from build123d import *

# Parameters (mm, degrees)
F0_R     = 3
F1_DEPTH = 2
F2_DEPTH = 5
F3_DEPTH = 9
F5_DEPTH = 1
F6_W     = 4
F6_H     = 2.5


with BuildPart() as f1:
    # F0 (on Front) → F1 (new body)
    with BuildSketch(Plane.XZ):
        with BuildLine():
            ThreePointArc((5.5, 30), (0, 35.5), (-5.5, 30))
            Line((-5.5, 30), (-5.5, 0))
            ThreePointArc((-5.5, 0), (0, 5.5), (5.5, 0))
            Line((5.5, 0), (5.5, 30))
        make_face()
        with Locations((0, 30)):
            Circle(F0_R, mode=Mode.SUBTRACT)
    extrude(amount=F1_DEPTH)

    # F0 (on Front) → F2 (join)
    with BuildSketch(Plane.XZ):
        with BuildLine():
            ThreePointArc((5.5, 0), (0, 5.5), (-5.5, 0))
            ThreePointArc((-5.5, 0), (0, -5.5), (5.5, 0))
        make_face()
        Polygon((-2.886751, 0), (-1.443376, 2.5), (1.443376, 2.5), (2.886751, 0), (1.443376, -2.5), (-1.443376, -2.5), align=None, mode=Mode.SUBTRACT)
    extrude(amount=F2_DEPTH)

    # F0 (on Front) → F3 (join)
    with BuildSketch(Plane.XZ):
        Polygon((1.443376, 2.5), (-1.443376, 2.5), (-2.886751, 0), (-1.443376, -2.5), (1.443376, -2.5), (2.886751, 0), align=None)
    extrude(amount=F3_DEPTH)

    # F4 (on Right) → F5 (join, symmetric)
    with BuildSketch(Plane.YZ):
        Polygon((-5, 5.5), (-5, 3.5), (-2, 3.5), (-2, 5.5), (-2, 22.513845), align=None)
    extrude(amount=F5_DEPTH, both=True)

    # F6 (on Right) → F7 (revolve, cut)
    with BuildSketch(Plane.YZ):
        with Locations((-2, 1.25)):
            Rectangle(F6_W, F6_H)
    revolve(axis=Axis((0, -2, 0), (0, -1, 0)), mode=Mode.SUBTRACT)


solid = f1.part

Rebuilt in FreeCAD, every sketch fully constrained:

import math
import FreeCAD as App
import Part
import Sketcher
Q = App.Units.Quantity

doc = App.newDocument("Part")
body = doc.addObject("PartDesign::Body", "Body")

# Sketch on XZ plane
sketch1 = doc.addObject("Sketcher::SketchObject", "Sketch")
body.addObject(sketch1)
sketch1.AttachmentSupport = (doc.XZ_Plane, [""])
sketch1.MapMode = "FlatFace"
sketch1.addGeometry(Part.ArcOfCircle(Part.Circle(App.Vector(0, 30, 0), App.Vector(0, 0, 1), 5.5), math.radians(0), math.radians(180)), False)
sketch1.addGeometry(Part.LineSegment(App.Vector(-5.5, 30, 0), App.Vector(-5.5, 0, 0)), False)
sketch1.addGeometry(Part.ArcOfCircle(Part.Circle(App.Vector(0, 0, 0), App.Vector(0, 0, 1), 5.5), math.radians(0), math.radians(180)), False)
sketch1.addGeometry(Part.LineSegment(App.Vector(5.5, 0, 0), App.Vector(5.5, 30, 0)), False)
sketch1.addGeometry(Part.Circle(App.Vector(0, 30, 0), App.Vector(0, 0, 1), 3), False)
sketch1.addConstraint(Sketcher.Constraint("Tangent", 0, 2, 1, 1))
sketch1.addConstraint(Sketcher.Constraint("Tangent", 1, 2, 2, 2))
sketch1.addConstraint(Sketcher.Constraint("Tangent", 2, 1, 3, 1))
sketch1.addConstraint(Sketcher.Constraint("Tangent", 3, 2, 0, 1))
sketch1.addConstraint(Sketcher.Constraint("Vertical", 1))
sketch1.addConstraint(Sketcher.Constraint("Vertical", 3))
sketch1.addConstraint(Sketcher.Constraint("Coincident", 2, 3, -1, 1))
sketch1.addConstraint(Sketcher.Constraint("Coincident", 4, 3, 0, 3))
sketch1.addConstraint(Sketcher.Constraint("Diameter", 4, Q("6 mm")))
sketch1.addConstraint(Sketcher.Constraint("Radius", 0, Q("5.5 mm")))
sketch1.addConstraint(Sketcher.Constraint("DistanceY", 1, 2, 1, 1, Q("30 mm")))
pad1 = doc.addObject("PartDesign::Pad", "Pad")
body.addObject(pad1)
pad1.Profile = sketch1
pad1.Length = 2

# Sketch on XZ plane
sketch2 = doc.addObject("Sketcher::SketchObject", "Sketch001")
body.addObject(sketch2)
sketch2.AttachmentSupport = (doc.XZ_Plane, [""])
sketch2.MapMode = "FlatFace"
sketch2.addGeometry(Part.Circle(App.Vector(0, 0, 0), App.Vector(0, 0, 1), 5.5), False)
sketch2.addGeometry(Part.LineSegment(App.Vector(-1.443376, -2.5, 0), App.Vector(-2.886751, 0, 0)), False)
sketch2.addGeometry(Part.LineSegment(App.Vector(-2.886751, 0, 0), App.Vector(-1.443376, 2.5, 0)), False)
sketch2.addGeometry(Part.LineSegment(App.Vector(-1.443376, 2.5, 0), App.Vector(1.443376, 2.5, 0)), False)
sketch2.addGeometry(Part.LineSegment(App.Vector(1.443376, 2.5, 0), App.Vector(2.886751, 0, 0)), False)
sketch2.addGeometry(Part.LineSegment(App.Vector(2.886751, 0, 0), App.Vector(1.443376, -2.5, 0)), False)
sketch2.addGeometry(Part.LineSegment(App.Vector(1.443376, -2.5, 0), App.Vector(-1.443376, -2.5, 0)), False)
sketch2.addConstraint(Sketcher.Constraint("Coincident", 1, 2, 2, 1))
sketch2.addConstraint(Sketcher.Constraint("Coincident", 2, 2, 3, 1))
sketch2.addConstraint(Sketcher.Constraint("Coincident", 3, 2, 4, 1))
sketch2.addConstraint(Sketcher.Constraint("Coincident", 4, 2, 5, 1))
sketch2.addConstraint(Sketcher.Constraint("Coincident", 5, 2, 6, 1))
sketch2.addConstraint(Sketcher.Constraint("Coincident", 6, 2, 1, 1))
sketch2.addConstraint(Sketcher.Constraint("Horizontal", 3))
sketch2.addConstraint(Sketcher.Constraint("Horizontal", 6))
sketch2.addConstraint(Sketcher.Constraint("Coincident", 0, 3, -1, 1))
sketch2.addConstraint(Sketcher.Constraint("Symmetric", 1, 2, 4, 2, -1, 1))
sketch2.addConstraint(Sketcher.Constraint("Symmetric", 2, 2, 5, 2, -1, 1))
sketch2.addConstraint(Sketcher.Constraint("PointOnObject", 1, 2, -1))
sketch2.addConstraint(Sketcher.Constraint("Parallel", 1, 4))
sketch2.addConstraint(Sketcher.Constraint("Vertical", 3, 2, 5, 2))
sketch2.addConstraint(Sketcher.Constraint("Diameter", 0, Q("11 mm")))
sketch2.addConstraint(Sketcher.Constraint("Angle", 1, Q("119.999988 deg")))
sketch2.addConstraint(Sketcher.Constraint("DistanceY", 5, 2, 3, 2, Q("5 mm")))
sketch2.addConstraint(Sketcher.Constraint("DistanceX", 3, 1, 3, 2, Q("2.886752 mm")))
pad2 = doc.addObject("PartDesign::Pad", "Pad001")
body.addObject(pad2)
pad2.Profile = sketch2
pad2.Length = 5

# Sketch on XZ plane
sketch3 = doc.addObject("Sketcher::SketchObject", "Sketch002")
body.addObject(sketch3)
sketch3.AttachmentSupport = (doc.XZ_Plane, [""])
sketch3.MapMode = "FlatFace"
sketch3.addGeometry(Part.LineSegment(App.Vector(1.443376, 2.5, 0), App.Vector(-1.443376, 2.5, 0)), False)
sketch3.addGeometry(Part.LineSegment(App.Vector(-1.443376, 2.5, 0), App.Vector(-2.886751, 0, 0)), False)
sketch3.addGeometry(Part.LineSegment(App.Vector(-2.886751, 0, 0), App.Vector(-1.443376, -2.5, 0)), False)
sketch3.addGeometry(Part.LineSegment(App.Vector(-1.443376, -2.5, 0), App.Vector(1.443376, -2.5, 0)), False)
sketch3.addGeometry(Part.LineSegment(App.Vector(1.443376, -2.5, 0), App.Vector(2.886751, 0, 0)), False)
sketch3.addGeometry(Part.LineSegment(App.Vector(2.886751, 0, 0), App.Vector(1.443376, 2.5, 0)), False)
sketch3.addConstraint(Sketcher.Constraint("Coincident", 0, 2, 1, 1))
sketch3.addConstraint(Sketcher.Constraint("Coincident", 1, 2, 2, 1))
sketch3.addConstraint(Sketcher.Constraint("Coincident", 2, 2, 3, 1))
sketch3.addConstraint(Sketcher.Constraint("Coincident", 3, 2, 4, 1))
sketch3.addConstraint(Sketcher.Constraint("Coincident", 4, 2, 5, 1))
sketch3.addConstraint(Sketcher.Constraint("Coincident", 5, 2, 0, 1))
sketch3.addConstraint(Sketcher.Constraint("Horizontal", 0))
sketch3.addConstraint(Sketcher.Constraint("Horizontal", 3))
sketch3.addConstraint(Sketcher.Constraint("Symmetric", 0, 2, 3, 2, -1, 1))
sketch3.addConstraint(Sketcher.Constraint("Symmetric", 1, 2, 4, 2, -1, 1))
sketch3.addConstraint(Sketcher.Constraint("PointOnObject", 1, 2, -1))
sketch3.addConstraint(Sketcher.Constraint("Parallel", 2, 5))
sketch3.addConstraint(Sketcher.Constraint("Vertical", 0, 2, 2, 2))
sketch3.addConstraint(Sketcher.Constraint("Angle", 1, Q("-119.999988 deg")))
sketch3.addConstraint(Sketcher.Constraint("DistanceY", 2, 2, 0, 2, Q("5 mm")))
sketch3.addConstraint(Sketcher.Constraint("DistanceX", 0, 2, 0, 1, Q("2.886752 mm")))
pad3 = doc.addObject("PartDesign::Pad", "Pad002")
body.addObject(pad3)
pad3.Profile = sketch3
pad3.Length = 9

# Sketch on YZ plane
sketch4 = doc.addObject("Sketcher::SketchObject", "Sketch003")
body.addObject(sketch4)
sketch4.AttachmentSupport = (doc.YZ_Plane, [""])
sketch4.MapMode = "FlatFace"
sketch4.addGeometry(Part.LineSegment(App.Vector(-5, 5.5, 0), App.Vector(-5, 3.5, 0)), False)
sketch4.addGeometry(Part.LineSegment(App.Vector(-5, 3.5, 0), App.Vector(-2, 3.5, 0)), False)
sketch4.addGeometry(Part.LineSegment(App.Vector(-2, 3.5, 0), App.Vector(-2, 22.513845, 0)), False)
sketch4.addGeometry(Part.LineSegment(App.Vector(-2, 22.513845, 0), App.Vector(-5, 5.5, 0)), False)
sketch4.addConstraint(Sketcher.Constraint("Coincident", 0, 2, 1, 1))
sketch4.addConstraint(Sketcher.Constraint("Coincident", 1, 2, 2, 1))
sketch4.addConstraint(Sketcher.Constraint("Coincident", 2, 2, 3, 1))
sketch4.addConstraint(Sketcher.Constraint("Coincident", 3, 2, 0, 1))
sketch4.addConstraint(Sketcher.Constraint("Vertical", 0))
sketch4.addConstraint(Sketcher.Constraint("Horizontal", 1))
sketch4.addConstraint(Sketcher.Constraint("Vertical", 2))
sketch4.addConstraint(Sketcher.Constraint("DistanceX", 1, 1, 1, 2, Q("3 mm")))
sketch4.addConstraint(Sketcher.Constraint("DistanceY", 0, 2, 0, 1, Q("2 mm")))
sketch4.addConstraint(Sketcher.Constraint("Angle", 3, Q("-100 deg")))
sketch4.addConstraint(Sketcher.Constraint("DistanceX", 0, 2, -1, 1, Q("5 mm")))
sketch4.addConstraint(Sketcher.Constraint("DistanceY", -1, 1, 0, 2, Q("3.5 mm")))
pad4 = doc.addObject("PartDesign::Pad", "Pad003")
body.addObject(pad4)
pad4.Profile = sketch4
pad4.Length = 2
pad4.Midplane = True

# Sketch on YZ plane
sketch5 = doc.addObject("Sketcher::SketchObject", "Sketch004")
body.addObject(sketch5)
sketch5.AttachmentSupport = (doc.YZ_Plane, [""])
sketch5.MapMode = "FlatFace"
sketch5.addGeometry(Part.LineSegment(App.Vector(-4, 2.5, 0), App.Vector(-4, 0, 0)), False)
sketch5.addGeometry(Part.LineSegment(App.Vector(-4, 0, 0), App.Vector(0, 0, 0)), False)
sketch5.addGeometry(Part.LineSegment(App.Vector(0, 0, 0), App.Vector(0, 2.5, 0)), False)
sketch5.addGeometry(Part.LineSegment(App.Vector(0, 2.5, 0), App.Vector(-4, 2.5, 0)), False)
sketch5.addConstraint(Sketcher.Constraint("Coincident", 0, 2, 1, 1))
sketch5.addConstraint(Sketcher.Constraint("Coincident", 1, 2, 2, 1))
sketch5.addConstraint(Sketcher.Constraint("Coincident", 2, 2, 3, 1))
sketch5.addConstraint(Sketcher.Constraint("Coincident", 3, 2, 0, 1))
sketch5.addConstraint(Sketcher.Constraint("Vertical", 0))
sketch5.addConstraint(Sketcher.Constraint("Horizontal", 1))
sketch5.addConstraint(Sketcher.Constraint("Vertical", 2))
sketch5.addConstraint(Sketcher.Constraint("Horizontal", 3))
sketch5.addConstraint(Sketcher.Constraint("Coincident", 1, 2, -1, 1))
sketch5.addConstraint(Sketcher.Constraint("DistanceX", 1, 1, 1, 2, Q("4 mm")))
sketch5.addConstraint(Sketcher.Constraint("DistanceY", 0, 2, 0, 1, Q("2.5 mm")))
groove = doc.addObject("PartDesign::Groove", "Groove")
body.addObject(groove)
groove.Profile = sketch5
groove.ReferenceAxis = (sketch5, ["H_Axis"])
groove.Angle = 360

doc.recompute()
